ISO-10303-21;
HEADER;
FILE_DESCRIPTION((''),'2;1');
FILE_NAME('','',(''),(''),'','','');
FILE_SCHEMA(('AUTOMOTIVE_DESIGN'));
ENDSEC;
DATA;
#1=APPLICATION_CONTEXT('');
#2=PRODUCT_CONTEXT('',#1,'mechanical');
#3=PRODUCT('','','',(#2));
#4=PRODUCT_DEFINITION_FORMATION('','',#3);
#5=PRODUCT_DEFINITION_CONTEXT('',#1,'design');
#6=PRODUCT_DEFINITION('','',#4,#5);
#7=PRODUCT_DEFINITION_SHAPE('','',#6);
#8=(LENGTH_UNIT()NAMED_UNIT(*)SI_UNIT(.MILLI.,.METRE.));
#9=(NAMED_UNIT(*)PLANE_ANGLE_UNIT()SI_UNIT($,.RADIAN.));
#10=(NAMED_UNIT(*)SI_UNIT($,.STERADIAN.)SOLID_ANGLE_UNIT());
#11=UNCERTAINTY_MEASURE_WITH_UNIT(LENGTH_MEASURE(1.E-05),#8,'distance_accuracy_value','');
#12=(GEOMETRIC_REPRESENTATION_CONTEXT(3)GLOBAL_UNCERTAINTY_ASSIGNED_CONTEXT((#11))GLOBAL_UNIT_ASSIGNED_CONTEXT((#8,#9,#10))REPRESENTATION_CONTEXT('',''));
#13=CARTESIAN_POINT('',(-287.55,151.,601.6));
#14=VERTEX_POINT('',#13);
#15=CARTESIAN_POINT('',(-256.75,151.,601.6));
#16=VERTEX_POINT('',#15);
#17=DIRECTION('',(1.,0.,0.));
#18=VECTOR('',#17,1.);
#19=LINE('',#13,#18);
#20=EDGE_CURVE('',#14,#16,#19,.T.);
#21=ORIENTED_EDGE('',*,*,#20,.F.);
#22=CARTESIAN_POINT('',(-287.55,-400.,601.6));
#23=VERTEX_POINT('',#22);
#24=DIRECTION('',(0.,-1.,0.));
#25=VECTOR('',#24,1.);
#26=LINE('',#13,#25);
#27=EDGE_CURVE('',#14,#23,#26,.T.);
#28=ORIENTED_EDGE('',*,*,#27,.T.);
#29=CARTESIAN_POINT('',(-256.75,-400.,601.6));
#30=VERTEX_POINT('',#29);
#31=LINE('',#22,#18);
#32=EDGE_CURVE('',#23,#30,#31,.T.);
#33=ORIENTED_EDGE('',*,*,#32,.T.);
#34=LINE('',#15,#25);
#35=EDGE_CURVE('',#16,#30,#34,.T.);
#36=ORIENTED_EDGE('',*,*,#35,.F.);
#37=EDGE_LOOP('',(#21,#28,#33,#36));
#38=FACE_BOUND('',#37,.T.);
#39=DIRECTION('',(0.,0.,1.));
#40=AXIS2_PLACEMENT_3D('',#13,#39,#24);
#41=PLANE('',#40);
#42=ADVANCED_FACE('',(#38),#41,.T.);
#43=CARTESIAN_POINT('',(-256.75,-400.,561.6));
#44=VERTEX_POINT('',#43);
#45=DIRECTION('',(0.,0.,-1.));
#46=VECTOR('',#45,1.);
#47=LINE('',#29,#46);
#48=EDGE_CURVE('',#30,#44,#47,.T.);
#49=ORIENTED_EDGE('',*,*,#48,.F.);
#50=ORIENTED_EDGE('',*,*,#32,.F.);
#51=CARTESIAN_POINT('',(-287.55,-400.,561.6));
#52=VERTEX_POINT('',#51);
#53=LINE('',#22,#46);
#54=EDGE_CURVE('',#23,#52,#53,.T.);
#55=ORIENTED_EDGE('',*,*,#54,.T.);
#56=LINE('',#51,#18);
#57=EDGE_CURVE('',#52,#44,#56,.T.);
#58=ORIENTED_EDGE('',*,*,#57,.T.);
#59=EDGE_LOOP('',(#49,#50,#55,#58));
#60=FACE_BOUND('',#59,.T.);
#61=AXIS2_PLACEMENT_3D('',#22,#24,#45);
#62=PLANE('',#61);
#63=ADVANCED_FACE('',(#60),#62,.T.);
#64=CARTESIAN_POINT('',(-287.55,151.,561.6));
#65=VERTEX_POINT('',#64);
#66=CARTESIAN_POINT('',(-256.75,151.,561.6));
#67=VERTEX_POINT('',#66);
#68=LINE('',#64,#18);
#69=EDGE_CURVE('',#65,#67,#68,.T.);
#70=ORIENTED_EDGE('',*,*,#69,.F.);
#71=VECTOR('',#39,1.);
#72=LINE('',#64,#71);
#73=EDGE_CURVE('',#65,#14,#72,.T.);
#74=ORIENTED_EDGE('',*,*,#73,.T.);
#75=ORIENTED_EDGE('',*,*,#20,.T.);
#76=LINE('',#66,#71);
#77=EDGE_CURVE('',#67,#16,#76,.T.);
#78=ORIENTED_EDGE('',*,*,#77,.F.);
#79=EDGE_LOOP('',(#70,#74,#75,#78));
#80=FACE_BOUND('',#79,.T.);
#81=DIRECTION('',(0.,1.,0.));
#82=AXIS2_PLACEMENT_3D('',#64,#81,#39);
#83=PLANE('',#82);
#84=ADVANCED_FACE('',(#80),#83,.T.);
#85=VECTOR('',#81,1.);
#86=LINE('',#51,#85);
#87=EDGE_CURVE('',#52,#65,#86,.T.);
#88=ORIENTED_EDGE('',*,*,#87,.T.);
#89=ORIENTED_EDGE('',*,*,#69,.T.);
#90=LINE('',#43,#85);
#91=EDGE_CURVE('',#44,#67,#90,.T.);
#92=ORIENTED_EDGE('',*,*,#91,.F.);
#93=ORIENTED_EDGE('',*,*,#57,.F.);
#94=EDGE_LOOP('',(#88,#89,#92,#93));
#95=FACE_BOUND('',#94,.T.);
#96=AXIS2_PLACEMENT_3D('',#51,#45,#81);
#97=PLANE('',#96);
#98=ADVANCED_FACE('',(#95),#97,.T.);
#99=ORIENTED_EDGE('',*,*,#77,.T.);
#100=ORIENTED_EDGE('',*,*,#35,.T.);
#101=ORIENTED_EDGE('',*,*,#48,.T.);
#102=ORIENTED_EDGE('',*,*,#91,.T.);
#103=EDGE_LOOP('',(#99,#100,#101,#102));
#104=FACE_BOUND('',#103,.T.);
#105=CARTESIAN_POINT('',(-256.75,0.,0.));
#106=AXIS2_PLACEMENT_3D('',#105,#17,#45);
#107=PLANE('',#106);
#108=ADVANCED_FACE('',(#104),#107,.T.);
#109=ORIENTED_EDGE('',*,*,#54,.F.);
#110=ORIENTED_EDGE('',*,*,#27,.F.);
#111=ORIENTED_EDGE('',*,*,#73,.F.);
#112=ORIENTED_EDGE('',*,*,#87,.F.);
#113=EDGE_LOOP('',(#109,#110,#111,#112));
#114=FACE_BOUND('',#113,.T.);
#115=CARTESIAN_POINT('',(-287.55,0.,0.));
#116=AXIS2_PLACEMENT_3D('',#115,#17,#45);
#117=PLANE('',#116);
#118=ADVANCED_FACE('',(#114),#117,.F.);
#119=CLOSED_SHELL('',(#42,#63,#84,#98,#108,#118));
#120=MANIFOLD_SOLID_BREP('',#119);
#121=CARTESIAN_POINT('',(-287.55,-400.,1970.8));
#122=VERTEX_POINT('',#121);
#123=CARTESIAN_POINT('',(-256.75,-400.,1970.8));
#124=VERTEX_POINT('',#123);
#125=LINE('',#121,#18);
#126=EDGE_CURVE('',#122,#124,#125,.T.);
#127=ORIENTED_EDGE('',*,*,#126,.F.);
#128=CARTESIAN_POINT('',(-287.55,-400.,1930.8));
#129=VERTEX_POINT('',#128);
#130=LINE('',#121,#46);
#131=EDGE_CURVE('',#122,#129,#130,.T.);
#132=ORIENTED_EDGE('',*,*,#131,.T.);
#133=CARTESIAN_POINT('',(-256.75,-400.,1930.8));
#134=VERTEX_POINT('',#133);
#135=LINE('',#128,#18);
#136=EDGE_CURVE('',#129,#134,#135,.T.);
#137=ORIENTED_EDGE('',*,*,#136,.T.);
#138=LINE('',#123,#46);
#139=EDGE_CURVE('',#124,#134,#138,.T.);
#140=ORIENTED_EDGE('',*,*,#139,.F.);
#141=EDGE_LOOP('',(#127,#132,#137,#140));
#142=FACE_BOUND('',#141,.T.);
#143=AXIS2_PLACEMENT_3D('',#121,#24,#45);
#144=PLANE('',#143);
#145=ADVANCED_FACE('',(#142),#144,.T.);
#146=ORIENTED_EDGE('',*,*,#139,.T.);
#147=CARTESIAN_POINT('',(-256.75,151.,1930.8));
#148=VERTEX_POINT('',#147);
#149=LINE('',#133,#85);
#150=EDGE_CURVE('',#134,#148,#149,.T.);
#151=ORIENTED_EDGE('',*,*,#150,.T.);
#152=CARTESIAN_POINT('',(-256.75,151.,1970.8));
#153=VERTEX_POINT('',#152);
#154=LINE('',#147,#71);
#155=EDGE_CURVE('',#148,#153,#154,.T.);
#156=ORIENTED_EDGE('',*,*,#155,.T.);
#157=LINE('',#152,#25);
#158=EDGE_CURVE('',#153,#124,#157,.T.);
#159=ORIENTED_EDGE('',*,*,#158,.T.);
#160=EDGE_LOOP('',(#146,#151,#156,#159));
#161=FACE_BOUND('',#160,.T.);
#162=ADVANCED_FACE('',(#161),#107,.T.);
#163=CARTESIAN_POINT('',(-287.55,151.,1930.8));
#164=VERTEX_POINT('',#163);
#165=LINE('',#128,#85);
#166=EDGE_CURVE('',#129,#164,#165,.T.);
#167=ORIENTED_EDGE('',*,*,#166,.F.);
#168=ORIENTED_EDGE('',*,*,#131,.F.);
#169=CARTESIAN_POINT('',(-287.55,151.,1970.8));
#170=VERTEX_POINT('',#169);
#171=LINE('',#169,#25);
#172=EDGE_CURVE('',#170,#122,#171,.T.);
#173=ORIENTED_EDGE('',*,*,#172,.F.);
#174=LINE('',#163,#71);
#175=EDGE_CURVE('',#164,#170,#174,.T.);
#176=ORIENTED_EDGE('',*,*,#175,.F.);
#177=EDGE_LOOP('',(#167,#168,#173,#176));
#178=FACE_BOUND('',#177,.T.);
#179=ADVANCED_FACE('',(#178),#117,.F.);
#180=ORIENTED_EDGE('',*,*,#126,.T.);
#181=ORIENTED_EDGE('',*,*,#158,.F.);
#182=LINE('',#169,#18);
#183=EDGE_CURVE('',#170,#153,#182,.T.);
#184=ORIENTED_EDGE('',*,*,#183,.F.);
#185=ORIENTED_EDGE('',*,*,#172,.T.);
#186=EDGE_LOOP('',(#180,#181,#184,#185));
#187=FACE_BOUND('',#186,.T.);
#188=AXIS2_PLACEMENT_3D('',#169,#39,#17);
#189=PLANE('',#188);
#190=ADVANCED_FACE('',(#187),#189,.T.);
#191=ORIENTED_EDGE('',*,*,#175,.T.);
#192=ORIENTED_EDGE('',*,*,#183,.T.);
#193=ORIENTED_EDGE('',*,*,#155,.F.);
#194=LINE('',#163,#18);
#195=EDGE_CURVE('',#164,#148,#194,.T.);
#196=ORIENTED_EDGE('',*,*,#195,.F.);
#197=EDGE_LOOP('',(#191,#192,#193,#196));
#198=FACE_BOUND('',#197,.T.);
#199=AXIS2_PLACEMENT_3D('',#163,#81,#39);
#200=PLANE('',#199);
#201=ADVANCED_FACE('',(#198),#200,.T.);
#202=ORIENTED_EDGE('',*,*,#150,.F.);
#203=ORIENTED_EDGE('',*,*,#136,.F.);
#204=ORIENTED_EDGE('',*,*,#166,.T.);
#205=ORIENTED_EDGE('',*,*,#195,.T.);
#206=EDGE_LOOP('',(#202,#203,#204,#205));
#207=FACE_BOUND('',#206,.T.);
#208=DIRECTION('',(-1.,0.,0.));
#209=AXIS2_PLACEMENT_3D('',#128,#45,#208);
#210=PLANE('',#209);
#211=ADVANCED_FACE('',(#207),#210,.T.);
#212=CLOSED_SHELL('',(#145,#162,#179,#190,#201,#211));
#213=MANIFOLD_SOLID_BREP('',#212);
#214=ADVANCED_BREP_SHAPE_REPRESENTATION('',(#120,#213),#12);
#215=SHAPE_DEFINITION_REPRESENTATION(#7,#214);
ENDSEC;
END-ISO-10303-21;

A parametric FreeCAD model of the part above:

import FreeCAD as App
import Part
import Sketcher
from FreeCAD import Vector
Q = App.Units.Quantity

doc = App.newDocument("Part")
body = doc.addObject("PartDesign::Body", "Body")

sketch1 = doc.addObject("Sketcher::SketchObject", "Sketch")
body.addObject(sketch1)
sketch1.AttachmentSupport = (doc.YZ_Plane, [""])
sketch1.MapMode = "FlatFace"
sketch1.AttachmentOffset = App.Placement(Vector(0, 0, -256.75), App.Rotation())
sketch1.addGeometry([
    Part.LineSegment(Vector(151, 1971, 0), Vector(-400, 1971, 0)),
    Part.LineSegment(Vector(-400, 1971, 0), Vector(-400, 1931, 0)),
    Part.LineSegment(Vector(-400, 1931, 0), Vector(151, 1931, 0)),
    Part.LineSegment(Vector(151, 1931, 0), Vector(151, 1971, 0)),
], False)
sketch1.addConstraint([
    Sketcher.Constraint("Coincident", 0, 2, 1, 1),
    Sketcher.Constraint("Coincident", 1, 2, 2, 1),
    Sketcher.Constraint("Coincident", 2, 2, 3, 1),
    Sketcher.Constraint("Coincident", 3, 2, 0, 1),
    Sketcher.Constraint("Horizontal", 0),
    Sketcher.Constraint("Vertical", 1),
    Sketcher.Constraint("Horizontal", 2),
    Sketcher.Constraint("Vertical", 3),
    Sketcher.Constraint("DistanceX", 0, 2, 0, 1, Q("551 mm")),
    Sketcher.Constraint("DistanceY", 1, 2, 1, 1, Q("40 mm")),
    Sketcher.Constraint("DistanceX", 0, 2, -1, 1, Q("400 mm")),
    Sketcher.Constraint("DistanceY", -1, 1, 0, 2, Q("1970.8 mm")),
])
pad1 = doc.addObject("PartDesign::Pad", "Pad")
body.addObject(pad1)
pad1.Profile = sketch1
pad1.Length = 30.8
pad1.Reversed = True
body2 = doc.addObject("PartDesign::Body", "Body001")

sketch2 = doc.addObject("Sketcher::SketchObject", "Sketch001")
body2.addObject(sketch2)
sketch2.AttachmentSupport = (doc.getObject("YZ_Plane001"), [""])
sketch2.MapMode = "FlatFace"
sketch2.AttachmentOffset = App.Placement(Vector(0, 0, -256.75), App.Rotation())
sketch2.addGeometry([
    Part.LineSegment(Vector(151, 602, 0), Vector(-400, 602, 0)),
    Part.LineSegment(Vector(-400, 602, 0), Vector(-400, 562, 0)),
    Part.LineSegment(Vector(-400, 562, 0), Vector(151, 562, 0)),
    Part.LineSegment(Vector(151, 562, 0), Vector(151, 602, 0)),
], False)
sketch2.addConstraint([
    Sketcher.Constraint("Coincident", 0, 2, 1, 1),
    Sketcher.Constraint("Coincident", 1, 2, 2, 1),
    Sketcher.Constraint("Coincident", 2, 2, 3, 1),
    Sketcher.Constraint("Coincident", 3, 2, 0, 1),
    Sketcher.Constraint("Horizontal", 0),
    Sketcher.Constraint("Vertical", 1),
    Sketcher.Constraint("Horizontal", 2),
    Sketcher.Constraint("Vertical", 3),
    Sketcher.Constraint("DistanceX", 0, 2, 0, 1, Q("551 mm")),
    Sketcher.Constraint("DistanceY", 1, 2, 1, 1, Q("40 mm")),
    Sketcher.Constraint("DistanceX", 0, 2, -1, 1, Q("400 mm")),
    Sketcher.Constraint("DistanceY", -1, 1, 0, 2, Q("601.6 mm")),
])
pad2 = doc.addObject("PartDesign::Pad", "Pad001")
body2.addObject(pad2)
pad2.Profile = sketch2
pad2.Length = 30.8
pad2.Reversed = True

doc.recompute()
